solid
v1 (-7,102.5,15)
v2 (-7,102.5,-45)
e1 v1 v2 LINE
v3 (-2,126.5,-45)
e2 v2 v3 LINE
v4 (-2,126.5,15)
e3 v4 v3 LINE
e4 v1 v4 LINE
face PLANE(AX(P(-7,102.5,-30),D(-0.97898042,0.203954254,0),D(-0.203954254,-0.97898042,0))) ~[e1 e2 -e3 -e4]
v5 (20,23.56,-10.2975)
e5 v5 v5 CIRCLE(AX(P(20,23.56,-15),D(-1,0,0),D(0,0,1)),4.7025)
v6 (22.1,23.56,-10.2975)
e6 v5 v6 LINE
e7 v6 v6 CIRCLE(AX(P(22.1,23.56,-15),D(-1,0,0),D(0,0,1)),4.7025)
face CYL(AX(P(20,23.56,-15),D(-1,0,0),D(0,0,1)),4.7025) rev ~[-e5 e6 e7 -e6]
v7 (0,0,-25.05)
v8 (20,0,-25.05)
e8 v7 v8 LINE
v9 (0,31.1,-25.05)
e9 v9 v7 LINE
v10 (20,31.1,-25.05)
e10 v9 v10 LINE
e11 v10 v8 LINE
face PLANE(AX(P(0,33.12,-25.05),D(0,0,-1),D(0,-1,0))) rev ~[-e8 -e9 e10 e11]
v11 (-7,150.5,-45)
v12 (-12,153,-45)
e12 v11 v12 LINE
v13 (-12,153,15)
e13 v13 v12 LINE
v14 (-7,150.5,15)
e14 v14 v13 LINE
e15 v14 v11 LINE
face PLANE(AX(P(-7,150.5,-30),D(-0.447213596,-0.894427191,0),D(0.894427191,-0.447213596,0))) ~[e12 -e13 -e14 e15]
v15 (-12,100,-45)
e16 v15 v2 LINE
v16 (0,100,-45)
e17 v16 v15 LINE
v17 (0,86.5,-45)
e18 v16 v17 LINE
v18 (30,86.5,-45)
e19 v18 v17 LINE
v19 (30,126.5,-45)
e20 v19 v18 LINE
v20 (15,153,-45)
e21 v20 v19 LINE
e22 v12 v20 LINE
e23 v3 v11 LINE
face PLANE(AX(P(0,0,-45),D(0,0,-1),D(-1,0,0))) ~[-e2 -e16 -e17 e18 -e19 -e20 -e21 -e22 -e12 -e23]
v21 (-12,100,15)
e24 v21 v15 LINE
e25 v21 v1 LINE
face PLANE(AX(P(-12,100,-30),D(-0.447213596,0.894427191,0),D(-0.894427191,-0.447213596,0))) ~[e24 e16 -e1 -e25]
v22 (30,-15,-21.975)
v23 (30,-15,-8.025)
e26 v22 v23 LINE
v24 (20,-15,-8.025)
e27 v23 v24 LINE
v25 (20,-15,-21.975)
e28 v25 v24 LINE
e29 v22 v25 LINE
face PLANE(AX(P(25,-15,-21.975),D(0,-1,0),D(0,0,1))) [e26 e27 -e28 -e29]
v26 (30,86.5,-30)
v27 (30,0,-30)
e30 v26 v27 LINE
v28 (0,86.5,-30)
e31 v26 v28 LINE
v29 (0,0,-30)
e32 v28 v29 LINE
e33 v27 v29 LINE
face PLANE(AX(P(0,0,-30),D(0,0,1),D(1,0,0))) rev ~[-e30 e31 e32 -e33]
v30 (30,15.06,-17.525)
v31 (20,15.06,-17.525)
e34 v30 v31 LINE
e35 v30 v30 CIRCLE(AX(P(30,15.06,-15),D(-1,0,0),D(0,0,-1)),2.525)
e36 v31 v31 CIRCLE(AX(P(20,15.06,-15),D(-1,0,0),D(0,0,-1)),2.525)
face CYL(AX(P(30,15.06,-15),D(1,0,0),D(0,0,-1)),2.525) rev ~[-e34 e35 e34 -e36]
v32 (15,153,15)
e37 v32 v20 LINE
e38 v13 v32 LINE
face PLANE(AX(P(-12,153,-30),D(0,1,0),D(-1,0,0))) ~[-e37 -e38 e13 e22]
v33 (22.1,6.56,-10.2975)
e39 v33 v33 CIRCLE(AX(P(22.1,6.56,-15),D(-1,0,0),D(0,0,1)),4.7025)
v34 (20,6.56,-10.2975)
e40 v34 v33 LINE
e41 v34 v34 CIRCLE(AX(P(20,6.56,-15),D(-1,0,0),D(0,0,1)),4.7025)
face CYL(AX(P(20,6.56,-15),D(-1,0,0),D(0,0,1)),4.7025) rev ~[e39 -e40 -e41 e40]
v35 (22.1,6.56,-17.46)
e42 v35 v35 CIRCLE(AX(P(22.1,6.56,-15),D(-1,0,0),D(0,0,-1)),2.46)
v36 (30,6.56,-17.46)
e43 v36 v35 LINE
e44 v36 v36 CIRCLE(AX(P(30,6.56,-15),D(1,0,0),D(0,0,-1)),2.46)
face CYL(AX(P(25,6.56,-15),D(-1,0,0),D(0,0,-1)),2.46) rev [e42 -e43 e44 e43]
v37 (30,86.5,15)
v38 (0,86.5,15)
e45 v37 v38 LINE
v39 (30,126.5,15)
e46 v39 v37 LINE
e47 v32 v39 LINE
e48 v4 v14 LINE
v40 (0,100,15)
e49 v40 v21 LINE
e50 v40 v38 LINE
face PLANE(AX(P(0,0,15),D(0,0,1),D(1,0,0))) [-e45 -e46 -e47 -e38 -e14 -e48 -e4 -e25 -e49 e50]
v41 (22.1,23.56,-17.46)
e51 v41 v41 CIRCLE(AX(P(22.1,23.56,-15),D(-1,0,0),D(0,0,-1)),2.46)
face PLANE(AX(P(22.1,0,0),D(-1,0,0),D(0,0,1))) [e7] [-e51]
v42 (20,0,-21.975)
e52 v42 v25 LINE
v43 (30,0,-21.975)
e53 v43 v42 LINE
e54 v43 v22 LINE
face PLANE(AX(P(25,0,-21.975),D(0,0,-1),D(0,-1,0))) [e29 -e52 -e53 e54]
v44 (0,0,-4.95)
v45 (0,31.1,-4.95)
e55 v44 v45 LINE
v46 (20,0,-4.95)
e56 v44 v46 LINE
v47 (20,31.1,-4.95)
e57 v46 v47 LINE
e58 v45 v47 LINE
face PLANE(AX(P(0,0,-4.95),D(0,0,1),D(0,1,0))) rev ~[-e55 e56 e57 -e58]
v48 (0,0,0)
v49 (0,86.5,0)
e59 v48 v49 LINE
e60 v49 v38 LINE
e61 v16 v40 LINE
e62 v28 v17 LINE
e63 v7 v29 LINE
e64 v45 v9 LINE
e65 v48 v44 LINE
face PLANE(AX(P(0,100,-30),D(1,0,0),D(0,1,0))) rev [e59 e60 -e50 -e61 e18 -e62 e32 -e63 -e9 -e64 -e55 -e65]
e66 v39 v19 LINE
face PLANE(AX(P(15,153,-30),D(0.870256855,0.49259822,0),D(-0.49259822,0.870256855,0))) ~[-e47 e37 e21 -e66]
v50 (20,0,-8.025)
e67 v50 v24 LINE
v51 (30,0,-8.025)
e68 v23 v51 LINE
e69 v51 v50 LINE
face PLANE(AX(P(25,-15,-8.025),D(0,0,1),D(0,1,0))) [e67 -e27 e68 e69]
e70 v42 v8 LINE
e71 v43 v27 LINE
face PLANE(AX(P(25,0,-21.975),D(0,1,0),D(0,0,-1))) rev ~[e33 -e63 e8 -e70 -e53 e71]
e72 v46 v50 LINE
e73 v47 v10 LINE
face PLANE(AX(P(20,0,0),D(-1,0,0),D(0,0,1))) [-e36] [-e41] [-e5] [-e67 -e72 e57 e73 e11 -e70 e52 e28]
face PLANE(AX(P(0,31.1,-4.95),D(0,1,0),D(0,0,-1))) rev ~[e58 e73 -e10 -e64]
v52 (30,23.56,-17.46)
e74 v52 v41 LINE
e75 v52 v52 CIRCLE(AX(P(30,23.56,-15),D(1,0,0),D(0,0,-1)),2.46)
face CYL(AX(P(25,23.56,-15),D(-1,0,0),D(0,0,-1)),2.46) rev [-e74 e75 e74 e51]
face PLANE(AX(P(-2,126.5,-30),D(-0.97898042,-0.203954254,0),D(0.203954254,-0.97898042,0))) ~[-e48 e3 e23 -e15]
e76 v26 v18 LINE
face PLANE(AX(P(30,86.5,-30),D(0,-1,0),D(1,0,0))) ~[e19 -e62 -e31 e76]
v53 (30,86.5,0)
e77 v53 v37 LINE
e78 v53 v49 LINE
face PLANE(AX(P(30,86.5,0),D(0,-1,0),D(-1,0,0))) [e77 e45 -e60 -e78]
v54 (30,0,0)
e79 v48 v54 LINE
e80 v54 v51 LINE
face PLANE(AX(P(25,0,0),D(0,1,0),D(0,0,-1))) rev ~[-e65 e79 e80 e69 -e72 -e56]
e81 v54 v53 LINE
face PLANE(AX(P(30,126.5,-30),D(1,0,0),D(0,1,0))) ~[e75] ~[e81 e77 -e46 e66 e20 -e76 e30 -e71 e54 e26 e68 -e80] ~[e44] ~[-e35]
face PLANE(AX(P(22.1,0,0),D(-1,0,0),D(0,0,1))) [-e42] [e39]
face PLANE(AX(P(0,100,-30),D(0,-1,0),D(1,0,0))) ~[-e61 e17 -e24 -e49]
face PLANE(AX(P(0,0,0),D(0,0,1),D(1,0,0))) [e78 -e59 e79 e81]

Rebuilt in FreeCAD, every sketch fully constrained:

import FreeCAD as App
import Part
import Sketcher


def add_polygon(sketch, points):
    """Adds a closed chain of lines whose ends are joined by coincident constraints."""
    first, n = sketch.GeometryCount, len(points)
    for a, b in zip(points, points[1:] + points[:1]):
        sketch.addGeometry(Part.LineSegment(App.Vector(*a, 0), App.Vector(*b, 0)), False)
    for i in range(n):
        sketch.addConstraint(Sketcher.Constraint("Coincident", first + i, 2, first + (i + 1) % n, 1))

doc = App.newDocument("Part")
body = doc.addObject("PartDesign::Body", "Body")

sketch1 = body.newObject("Sketcher::SketchObject", "Sketch")
sketch1.AttachmentSupport = (doc.getObject("XY_Plane"), [""])
sketch1.MapMode = "FlatFace"
add_polygon(sketch1, [(0, 40), (0, 0), (25, 0), (25, 40)])
sketch1.addConstraint([
    Sketcher.Constraint("Vertical", 0),
    Sketcher.Constraint("Horizontal", 1),
    Sketcher.Constraint("Vertical", 2),
    Sketcher.Constraint("Horizontal", 3),
    Sketcher.Constraint("Coincident", 0, 2, -1, 1),
    Sketcher.Constraint("DistanceX", 1, 1, 1, 2, 25.0),
    Sketcher.Constraint("DistanceY", 0, 2, 0, 1, 40.0),
])
pad1 = body.newObject("PartDesign::Pad", "Pad")
pad1.Profile = sketch1
pad1.Length = 30
pad1.Reversed = True

sketch2 = body.newObject("Sketcher::SketchObject", "Sketch001")
sketch2.AttachmentSupport = (doc.getObject("YZ_Plane"), [""])
sketch2.MapMode = "FlatFace"
sketch2.AttachmentOffset = App.Placement(App.Vector(0, 0, 25), App.Rotation())
sketch2.addGeometry(Part.Circle(App.Vector(6.56, -15, 0), App.Vector(0, 0, 1), 2.46), False)
sketch2.addConstraint([
    Sketcher.Constraint("Diameter", 0, 4.92),
    Sketcher.Constraint("DistanceY", 0, 3, -1, 1, 15.0),
    Sketcher.Constraint("DistanceX", -1, 1, 0, 3, 6.56),
])
pocket1 = body.newObject("PartDesign::Pocket", "Pocket")
pocket1.Profile = sketch2
pocket1.Length = 30

sketch3 = body.newObject("Sketcher::SketchObject", "Sketch002")
sketch3.AttachmentSupport = (doc.getObject("YZ_Plane"), [""])
sketch3.MapMode = "FlatFace"
add_polygon(sketch3, [(0, -25.05), (0, -4.95), (33.12, -4.95), (33.12, -25.05)])
sketch3.addConstraint([
    Sketcher.Constraint("Vertical", 0),
    Sketcher.Constraint("Horizontal", 1),
    Sketcher.Constraint("Vertical", 2),
    Sketcher.Constraint("Horizontal", 3),
    Sketcher.Constraint("PointOnObject", 0, 2, -2),
    Sketcher.Constraint("DistanceY", 0, 1, 0, 2, 20.1),
    Sketcher.Constraint("DistanceX", 1, 1, 1, 2, 33.12),
    Sketcher.Constraint("DistanceY", 0, 2, -1, 1, 4.95),
])
pocket2 = body.newObject("PartDesign::Pocket", "Pocket001")
pocket2.Profile = sketch3
pocket2.Length = 20
pocket2.Reversed = True

sketch4 = body.newObject("Sketcher::SketchObject", "Sketch003")
sketch4.AttachmentSupport = (doc.getObject("XZ_Plane"), [""])
sketch4.MapMode = "FlatFace"
add_polygon(sketch4, [(25, -8.025), (20, -8.025), (20, -21.975), (25, -21.975)])
sketch4.addConstraint([
    Sketcher.Constraint("Horizontal", 0),
    Sketcher.Constraint("Vertical", 1),
    Sketcher.Constraint("Horizontal", 2),
    Sketcher.Constraint("Vertical", 3),
    Sketcher.Constraint("DistanceY", 1, 2, 1, 1, 13.95),
    Sketcher.Constraint("DistanceX", 0, 2, 0, 1, 5.0),
    Sketcher.Constraint("DistanceX", -1, 1, 0, 2, 20.0),
    Sketcher.Constraint("DistanceY", 0, 2, -1, 1, 8.025),
])
pad2 = body.newObject("PartDesign::Pad", "Pad001")
pad2.Profile = sketch4
pad2.Length = 15

sketch5 = body.newObject("Sketcher::SketchObject", "Sketch004")
sketch5.AttachmentSupport = (doc.getObject("YZ_Plane"), [""])
sketch5.MapMode = "FlatFace"
sketch5.AttachmentOffset = App.Placement(App.Vector(0, 0, 20), App.Rotation())
sketch5.addGeometry([
    Part.Circle(App.Vector(6.56, -15, 0), App.Vector(0, 0, 1), 4.7025),
    Part.Circle(App.Vector(6.56, -15, 0), App.Vector(0, 0, 1), 2.46),
], False)
sketch5.addConstraint([
    Sketcher.Constraint("Coincident", 1, 3, 0, 3),
    Sketcher.Constraint("Diameter", 0, 9.405),
    Sketcher.Constraint("Diameter", 1, 4.92),
    Sketcher.Constraint("DistanceY", 0, 3, -1, 1, 15.0),
    Sketcher.Constraint("DistanceX", -1, 1, 0, 3, 6.56),
])
pocket3 = body.newObject("PartDesign::Pocket", "Pocket002")
pocket3.Profile = sketch5
pocket3.Length = 2.1
pocket3.Reversed = True

sketch6 = body.newObject("Sketcher::SketchObject", "Sketch005")
sketch6.AttachmentSupport = (doc.getObject("YZ_Plane"), [""])
sketch6.MapMode = "FlatFace"
sketch6.AttachmentOffset = App.Placement(App.Vector(0, 0, 25), App.Rotation())
sketch6.addGeometry(Part.Circle(App.Vector(23.56, -15, 0), App.Vector(0, 0, 1), 2.46), False)
sketch6.addConstraint([
    Sketcher.Constraint("Diameter", 0, 4.92),
    Sketcher.Constraint("DistanceY", 0, 3, -1, 1, 15.0),
    Sketcher.Constraint("DistanceX", -1, 1, 0, 3, 23.56),
])
pocket4 = body.newObject("PartDesign::Pocket", "Pocket003")
pocket4.Profile = sketch6
pocket4.Length = 10

sketch7 = body.newObject("Sketcher::SketchObject", "Sketch006")
sketch7.AttachmentSupport = (doc.getObject("YZ_Plane"), [""])
sketch7.MapMode = "FlatFace"
sketch7.AttachmentOffset = App.Placement(App.Vector(0, 0, 20), App.Rotation())
sketch7.addGeometry([
    Part.Circle(App.Vector(23.56, -15, 0), App.Vector(0, 0, 1), 4.7025),
    Part.Circle(App.Vector(23.56, -15, 0), App.Vector(0, 0, 1), 2.46),
], False)
sketch7.addConstraint([
    Sketcher.Constraint("Coincident", 1, 3, 0, 3),
    Sketcher.Constraint("Diameter", 0, 9.405),
    Sketcher.Constraint("Diameter", 1, 4.92),
    Sketcher.Constraint("DistanceY", 0, 3, -1, 1, 15.0),
    Sketcher.Constraint("DistanceX", -1, 1, 0, 3, 23.56),
])
pocket5 = body.newObject("PartDesign::Pocket", "Pocket004")
pocket5.Profile = sketch7
pocket5.Length = 2.1
pocket5.Reversed = True

sketch8 = body.newObject("Sketcher::SketchObject", "Sketch007")
sketch8.AttachmentSupport = (doc.getObject("YZ_Plane"), [""])
sketch8.MapMode = "FlatFace"
sketch8.AttachmentOffset = App.Placement(App.Vector(0, 0, 25), App.Rotation())
add_polygon(sketch8, [(0, -30), (40, -30), (40, 0), (0, 0), (0, -8.025), (-15, -8.025), (-15, -21.975), (0, -21.975)])
sketch8.addGeometry(Part.Circle(App.Vector(6.56, -15, 0), App.Vector(0, 0, 1), 2.46), False)
sketch8.addGeometry(Part.Circle(App.Vector(23.56, -15, 0), App.Vector(0, 0, 1), 2.46), False)
sketch8.addConstraint([
    Sketcher.Constraint("Horizontal", 0),
    Sketcher.Constraint("Vertical", 1),
    Sketcher.Constraint("Horizontal", 2),
    Sketcher.Constraint("Vertical", 3),
    Sketcher.Constraint("Horizontal", 4),
    Sketcher.Constraint("Vertical", 5),
    Sketcher.Constraint("Horizontal", 6),
    Sketcher.Constraint("Vertical", 7),
    Sketcher.Constraint("Coincident", 2, 2, -1, 1),
    Sketcher.Constraint("Equal", 8, 9),
    Sketcher.Constraint("PointOnObject", 6, 2, -2),
    Sketcher.Constraint("Horizontal", 8, 3, 9, 3),
    Sketcher.Constraint("Equal", 3, 7),
    Sketcher.Constraint("Diameter", 8, 4.92),
    Sketcher.Constraint("DistanceX", 0, 1, 0, 2, 40.0),
    Sketcher.Constraint("DistanceX", 4, 2, 4, 1, 15.0),
    Sketcher.Constraint("DistanceY", 1, 1, 1, 2, 30.0),
    Sketcher.Constraint("DistanceY", 8, 3, -1, 1, 15.0),
    Sketcher.Constraint("DistanceX", 8, 3, 9, 3, 17.0),
    Sketcher.Constraint("DistanceY", 5, 2, 5, 1, 13.95),
    Sketcher.Constraint("DistanceX", -1, 1, 8, 3, 6.56),
])
pad3 = body.newObject("PartDesign::Pad", "Pad002")
pad3.Profile = sketch8
pad3.Length = 5

sketch9 = body.newObject("Sketcher::SketchObject", "Sketch008")
sketch9.AttachmentSupport = (doc.getObject("XZ_Plane"), [""])
sketch9.MapMode = "FlatFace"
sketch9.AttachmentOffset = App.Placement(App.Vector(0, 0, -40), App.Rotation())
add_polygon(sketch9, [(30, -30), (0, -30), (0, 0), (30, 0)])
sketch9.addConstraint([
    Sketcher.Constraint("Horizontal", 0),
    Sketcher.Constraint("Vertical", 1),
    Sketcher.Constraint("Horizontal", 2),
    Sketcher.Constraint("Vertical", 3),
    Sketcher.Constraint("Coincident", 1, 2, -1, 1),
    Sketcher.Constraint("Equal", 2, 1),
    Sketcher.Constraint("DistanceX", 0, 2, 0, 1, 30.0),
])
pad4 = body.newObject("PartDesign::Pad", "Pad003")
pad4.Profile = sketch9
pad4.Length = 30
pad4.Reversed = True

sketch10 = body.newObject("Sketcher::SketchObject", "Sketch009")
sketch10.AttachmentSupport = (doc.getObject("YZ_Plane"), [""])
sketch10.MapMode = "FlatFace"
sketch10.AttachmentOffset = App.Placement(App.Vector(0, 0, 30), App.Rotation())
sketch10.addGeometry(Part.Circle(App.Vector(15.06, -15, 0), App.Vector(0, 0, 1), 2.525), False)
sketch10.addConstraint([
    Sketcher.Constraint("Diameter", 0, 5.05),
    Sketcher.Constraint("DistanceY", 0, 3, -1, 1, 15.0),
    Sketcher.Constraint("DistanceX", -1, 1, 0, 3, 15.06),
])
pocket6 = body.newObject("PartDesign::Pocket", "Pocket005")
pocket6.Profile = sketch10
pocket6.Length = 30

sketch11 = body.newObject("Sketcher::SketchObject", "Sketch010")
sketch11.AttachmentSupport = (doc.getObject("XY_Plane"), [""])
sketch11.MapMode = "FlatFace"
add_polygon(sketch11, [(0, 70), (30, 70), (30, 126.5), (15, 153), (-12, 153), (-7, 150.5), (-2, 126.5), (-7, 102.5), (-12, 100), (0, 100)])
sketch11.addConstraint([
    Sketcher.Constraint("Horizontal", 0),
    Sketcher.Constraint("Vertical", 1),
    Sketcher.Constraint("Horizontal", 3),
    Sketcher.Constraint("Horizontal", 8),
    Sketcher.Constraint("Vertical", 9),
    Sketcher.Constraint("PointOnObject", 8, 2, -2),
    Sketcher.Constraint("Horizontal", 1, 2, 5, 2),
    Sketcher.Constraint("Vertical", 4, 2, 6, 2),
    Sketcher.Constraint("Vertical", 3, 2, 7, 2),
    Sketcher.Constraint("Equal", 0, 9),
    Sketcher.Constraint("Equal", 5, 6),
    Sketcher.Constraint("Equal", 4, 7),
    Sketcher.Constraint("DistanceX", 8, 1, 8, 2, 12.0),
    Sketcher.Constraint("DistanceX", 0, 1, 0, 2, 30.0),
    Sketcher.Constraint("DistanceX", 3, 2, 3, 1, 27.0),
    Sketcher.Constraint("DistanceY", 1, 1, 1, 2, 56.5),
    Sketcher.Constraint("DistanceY", -1, 1, 0, 2, 70.0),
    Sketcher.Constraint("DistanceX", 4, 2, -1, 1, 7.0),
    Sketcher.Constraint("DistanceX", 5, 2, -1, 1, 2.0),
    Sketcher.Constraint("DistanceY", 1, 2, 4, 2, 24.0),
])
pad5 = body.newObject("PartDesign::Pad", "Pad004")
pad5.Profile = sketch11
pad5.Length = 30
pad5.Reversed = True

sketch12 = body.newObject("Sketcher::SketchObject", "Sketch011")
sketch12.AttachmentSupport = (doc.getObject("YZ_Plane"), [""])
sketch12.MapMode = "FlatFace"
add_polygon(sketch12, [(33.12, -4.95), (33.12, -25.05), (31.1, -25.05), (31.1, -4.95)])
sketch12.addConstraint([
    Sketcher.Constraint("Vertical", 0),
    Sketcher.Constraint("Horizontal", 1),
    Sketcher.Constraint("Vertical", 2),
    Sketcher.Constraint("Horizontal", 3),
    Sketcher.Constraint("DistanceX", 1, 2, 1, 1, 2.02),
    Sketcher.Constraint("DistanceY", 0, 2, 0, 1, 20.1),
    Sketcher.Constraint("DistanceX", -1, 1, 1, 2, 31.1),
    Sketcher.Constraint("DistanceY", 0, 2, -1, 1, 25.05),
])
pad6 = body.newObject("PartDesign::Pad", "Pad005")
pad6.Profile = sketch12
pad6.Length = 20

sketch13 = body.newObject("Sketcher::SketchObject", "Sketch012")
sketch13.AttachmentSupport = (doc.getObject("XY_Plane"), [""])
sketch13.MapMode = "FlatFace"
add_polygon(sketch13, [(-12, 100), (0, 100), (0, 86.5), (30, 86.5), (30, 126.5), (15, 153), (-12, 153), (-7, 150.5), (-2, 126.5), (-7, 102.5)])
sketch13.addConstraint([
    Sketcher.Constraint("Horizontal", 0),
    Sketcher.Constraint("Vertical", 1),
    Sketcher.Constraint("Horizontal", 2),
    Sketcher.Constraint("Vertical", 3),
    Sketcher.Constraint("Horizontal", 5),
    Sketcher.Constraint("PointOnObject", 0, 2, -2),
    Sketcher.Constraint("Horizontal", 3, 2, 7, 2),
    Sketcher.Constraint("Vertical", 6, 2, 8, 2),
    Sketcher.Constraint("Vertical", 5, 2, 9, 2),
    Sketcher.Constraint("Equal", 7, 8),
    Sketcher.Constraint("Equal", 6, 9),
    Sketcher.Constraint("DistanceX", 2, 1, 2, 2, 30.0),
    Sketcher.Constraint("DistanceY", 3, 1, 3, 2, 40.0),
    Sketcher.Constraint("DistanceX", 0, 1, 0, 2, 12.0),
    Sketcher.Constraint("DistanceX", 5, 2, 5, 1, 27.0),
    Sketcher.Constraint("DistanceY", 1, 2, 1, 1, 13.5),
    Sketcher.Constraint("DistanceY", -1, 1, 0, 2, 100.0),
    Sketcher.Constraint("DistanceX", 6, 2, -1, 1, 7.0),
    Sketcher.Constraint("DistanceX", 7, 2, -1, 1, 2.0),
    Sketcher.Constraint("DistanceY", 3, 2, 6, 2, 24.0),
])
pad7 = body.newObject("PartDesign::Pad", "Pad006")
pad7.Profile = sketch13
pad7.Length = 15
doc.recompute()

datumplane = body.newObject("PartDesign::Plane", "DatumPlane")
datumplane.AttachmentSupport = (doc.getObject("XY_Plane"), [""])
datumplane.MapMode = "FlatFace"
datumplane.AttachmentOffset = App.Placement(App.Vector(0, 0, -15), App.Rotation())
mirrored = body.newObject("PartDesign::Mirrored", "Mirrored")
mirrored.Originals = [pad7]
mirrored.MirrorPlane = (datumplane, [""])
body.Tip = mirrored

doc.recompute()
